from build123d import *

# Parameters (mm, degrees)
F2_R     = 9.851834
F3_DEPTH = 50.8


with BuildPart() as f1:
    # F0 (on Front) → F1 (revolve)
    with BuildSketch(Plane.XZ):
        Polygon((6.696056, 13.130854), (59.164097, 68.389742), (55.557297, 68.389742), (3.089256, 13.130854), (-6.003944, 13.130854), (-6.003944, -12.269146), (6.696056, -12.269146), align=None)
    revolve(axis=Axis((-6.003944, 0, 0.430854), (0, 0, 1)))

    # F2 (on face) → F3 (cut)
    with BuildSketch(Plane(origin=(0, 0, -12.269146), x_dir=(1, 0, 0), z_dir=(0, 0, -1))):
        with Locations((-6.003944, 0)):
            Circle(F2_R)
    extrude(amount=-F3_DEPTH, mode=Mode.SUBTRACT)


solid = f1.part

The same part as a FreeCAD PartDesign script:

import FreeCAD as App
import Part
import Sketcher
Q = App.Units.Quantity

doc = App.newDocument("Part")
body = doc.addObject("PartDesign::Body", "Body")

sketch1 = body.newObject("Sketcher::SketchObject", "Sketch")
sketch1.AttachmentSupport = (doc.getObject("XZ_Plane"), [""])
sketch1.MapMode = "FlatFace"
sketch1.addGeometry([
    Part.LineSegment(App.Vector(6.7, 13.1, 0), App.Vector(59.2, 68.4, 0)),
    Part.LineSegment(App.Vector(59.2, 68.4, 0), App.Vector(55.6, 68.4, 0)),
    Part.LineSegment(App.Vector(55.6, 68.4, 0), App.Vector(3.1, 13.1, 0)),
    Part.LineSegment(App.Vector(3.1, 13.1, 0), App.Vector(-6, 13.1, 0)),
    Part.LineSegment(App.Vector(-6, 13.1, 0), App.Vector(-6, -12.3, 0)),
    Part.LineSegment(App.Vector(-6, -12.3, 0), App.Vector(6.7, -12.3, 0)),
    Part.LineSegment(App.Vector(6.7, -12.3, 0), App.Vector(6.7, 13.1, 0)),
], False)
sketch1.addGeometry(Part.LineSegment(App.Vector(-6, -12.3, 0), App.Vector(-6, 68.4, 0)), True)
sketch1.addConstraint([
    Sketcher.Constraint("Coincident", 0, 2, 1, 1),
    Sketcher.Constraint("Coincident", 1, 2, 2, 1),
    Sketcher.Constraint("Coincident", 2, 2, 3, 1),
    Sketcher.Constraint("Coincident", 3, 2, 4, 1),
    Sketcher.Constraint("Coincident", 4, 2, 5, 1),
    Sketcher.Constraint("Coincident", 5, 2, 6, 1),
    Sketcher.Constraint("Coincident", 6, 2, 0, 1),
    Sketcher.Constraint("Horizontal", 1),
    Sketcher.Constraint("Horizontal", 3),
    Sketcher.Constraint("Vertical", 4),
    Sketcher.Constraint("Horizontal", 5),
    Sketcher.Constraint("Vertical", 6),
    Sketcher.Constraint("Vertical", 7),
    Sketcher.Constraint("Coincident", 7, 1, 4, 2),
    Sketcher.Constraint("Parallel", 0, 2),
    Sketcher.Constraint("Horizontal", 3, 2, 6, 2),
    Sketcher.Constraint("Horizontal", 1, 2, 7, 2),
    Sketcher.Constraint("DistanceY", 4, 2, 4, 1, Q("1 in")),
    Sketcher.Constraint("Distance", 0, Q("3 in")),
    Sketcher.Constraint("DistanceX", 5, 1, 5, 2, Q("0.5 in")),
    Sketcher.Constraint("DistanceX", 1, 2, 1, 1, Q("0.142 in")),
    Sketcher.Constraint("DistanceY", 7, 1, 7, 2, Q("80.658888 mm")),
    Sketcher.Constraint("DistanceY", -1, 1, 0, 2, Q("68.389742 mm")),
    Sketcher.Constraint("DistanceX", -1, 1, 0, 2, Q("59.164097 mm")),
])
revolution = body.newObject("PartDesign::Revolution", "Revolution")
revolution.Profile = sketch1
revolution.ReferenceAxis = (sketch1, ["Axis0"])
revolution.Angle = 360

sketch2 = body.newObject("Sketcher::SketchObject", "Sketch001")
sketch2.AttachmentSupport = (doc.getObject("XY_Plane"), [""])
sketch2.MapMode = "FlatFace"
sketch2.AttachmentOffset = App.Placement(App.Vector(0, 0, -12.269146), App.Rotation())
sketch2.addGeometry(Part.Circle(App.Vector(-6, 0, 0), App.Vector(0, 0, 1), 10), False)
sketch2.addConstraint([
    Sketcher.Constraint("PointOnObject", 0, 3, -1),
    Sketcher.Constraint("Diameter", 0, Q("19.703668 mm")),
    Sketcher.Constraint("DistanceX", 0, 3, -1, 1, Q("6.003944 mm")),
])
pocket1 = body.newObject("PartDesign::Pocket", "Pocket")
pocket1.Profile = sketch2
pocket1.Length = Q("2 in")
pocket1.Reversed = True

doc.recompute()
